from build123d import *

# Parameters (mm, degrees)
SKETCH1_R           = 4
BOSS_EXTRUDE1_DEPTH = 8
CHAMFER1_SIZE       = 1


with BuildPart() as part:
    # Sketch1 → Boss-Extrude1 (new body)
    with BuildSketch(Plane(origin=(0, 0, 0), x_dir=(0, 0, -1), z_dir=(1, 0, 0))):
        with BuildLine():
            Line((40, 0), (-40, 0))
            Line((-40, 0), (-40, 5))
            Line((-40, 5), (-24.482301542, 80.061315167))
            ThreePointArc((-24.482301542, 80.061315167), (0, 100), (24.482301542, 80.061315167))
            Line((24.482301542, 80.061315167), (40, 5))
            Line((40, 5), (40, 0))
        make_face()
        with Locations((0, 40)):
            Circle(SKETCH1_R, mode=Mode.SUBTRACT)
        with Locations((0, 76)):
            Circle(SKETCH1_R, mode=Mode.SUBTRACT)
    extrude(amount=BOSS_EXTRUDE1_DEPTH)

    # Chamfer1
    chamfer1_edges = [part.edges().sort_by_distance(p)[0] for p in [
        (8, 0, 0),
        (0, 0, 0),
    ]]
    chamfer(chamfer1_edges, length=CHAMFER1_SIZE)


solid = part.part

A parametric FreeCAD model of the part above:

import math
import FreeCAD as App
import Part
import Sketcher
from FreeCAD import Vector
Q = App.Units.Quantity


def edges_at(feature, points):
    """Names of the edges that pass closest to the given points."""
    edges = feature.Shape.Edges
    near = lambda p: min(range(len(edges)), key=lambda i: edges[i].distToShape(Part.Vertex(*p))[0])
    return sorted({f"Edge{near(p) + 1}" for p in points})

doc = App.newDocument("Part")
params = doc.addObject("Spreadsheet::Sheet", "Params")
for row, (alias, value) in enumerate([
    ("sketch1_diameter", "8 mm"),
    ("sketch1_radius", "25 mm"),
    ("sketch1_width", "5 mm"),
    ("sketch1_height", "80 mm"),
    ("pad1_length", "8 mm"),
    ("chamfer_size", "1 mm"),
], start=1):
    params.set(f"A{row}", alias)
    params.set(f"B{row}", "=" + value)
    params.setAlias(f"B{row}", alias)

body = doc.addObject("PartDesign::Body", "Body")

# Sketch on YZ plane
sketch1 = body.newObject("Sketcher::SketchObject", "Sketch")
sketch1.AttachmentSupport = (doc.getObject("YZ_Plane"), [""])
sketch1.MapMode = "FlatFace"
sketch1.addGeometry(Part.LineSegment(Vector(0, 40, 0), Vector(0, -40, 0)), False)
sketch1.addGeometry(Part.LineSegment(Vector(0, -40, 0), Vector(5, -40, 0)), False)
sketch1.addGeometry(Part.LineSegment(Vector(5, -40, 0), Vector(80.1, -24.5, 0)), False)
sketch1.addGeometry(Part.ArcOfCircle(Part.Circle(Vector(75, 0, 0), Vector(0, 0, 1), 25), math.radians(-78), math.radians(78)), False)
sketch1.addGeometry(Part.LineSegment(Vector(80.1, 24.5, 0), Vector(5, 40, 0)), False)
sketch1.addGeometry(Part.LineSegment(Vector(5, 40, 0), Vector(0, 40, 0)), False)
sketch1.addGeometry(Part.Circle(Vector(40, 0, 0), Vector(0, 0, 1), 4), False)
sketch1.addGeometry(Part.Circle(Vector(76, 0, 0), Vector(0, 0, 1), 4), False)
sketch1.addConstraint(Sketcher.Constraint("Coincident", 0, 2, 1, 1))
sketch1.addConstraint(Sketcher.Constraint("Coincident", 1, 2, 2, 1))
sketch1.addConstraint(Sketcher.Constraint("Tangent", 2, 2, 3, 1))
sketch1.addConstraint(Sketcher.Constraint("Tangent", 3, 2, 4, 1))
sketch1.addConstraint(Sketcher.Constraint("Coincident", 4, 2, 5, 1))
sketch1.addConstraint(Sketcher.Constraint("Coincident", 5, 2, 0, 1))
sketch1.addConstraint(Sketcher.Constraint("Vertical", 0))
sketch1.addConstraint(Sketcher.Constraint("Horizontal", 1))
sketch1.addConstraint(Sketcher.Constraint("Horizontal", 5))
sketch1.addConstraint(Sketcher.Constraint("Equal", 6, 7))
sketch1.addConstraint(Sketcher.Constraint("Symmetric", 0, 2, 5, 2, -1, 1))
sketch1.addConstraint(Sketcher.Constraint("Symmetric", 2, 2, 3, 2, -1))
sketch1.addConstraint(Sketcher.Constraint("PointOnObject", 6, 3, -1))
sketch1.addConstraint(Sketcher.Constraint("PointOnObject", 7, 3, -1))
sketch1.addConstraint(Sketcher.Constraint("Diameter", 6, Q("8 mm")))
sketch1.addConstraint(Sketcher.Constraint("Radius", 3, Q("25 mm")))
sketch1.addConstraint(Sketcher.Constraint("DistanceX", 1, 1, 1, 2, Q("5 mm")))
sketch1.addConstraint(Sketcher.Constraint("DistanceY", 0, 2, 0, 1, Q("80 mm")))
sketch1.addConstraint(Sketcher.Constraint("DistanceX", -1, 1, 3, 3, Q("75 mm")))
sketch1.addConstraint(Sketcher.Constraint("DistanceX", -1, 1, 6, 3, Q("40 mm")))
sketch1.addConstraint(Sketcher.Constraint("DistanceX", -1, 1, 7, 3, Q("76 mm")))
sketch1.setExpression("Constraints[14]", "Params.sketch1_diameter")
sketch1.setExpression("Constraints[15]", "Params.sketch1_radius")
sketch1.setExpression("Constraints[16]", "Params.sketch1_width")
sketch1.setExpression("Constraints[17]", "Params.sketch1_height")
pad1 = body.newObject("PartDesign::Pad", "Pad")
pad1.Profile = sketch1
pad1.setExpression("Length", "Params.pad1_length")
doc.recompute()

chamfer = body.newObject("PartDesign::Chamfer", "Chamfer")
chamfer.Base = (pad1, edges_at(pad1, [(8, 0, 0), (0, 0, 0)]))
chamfer.setExpression("Size", "Params.chamfer_size")

doc.recompute()
